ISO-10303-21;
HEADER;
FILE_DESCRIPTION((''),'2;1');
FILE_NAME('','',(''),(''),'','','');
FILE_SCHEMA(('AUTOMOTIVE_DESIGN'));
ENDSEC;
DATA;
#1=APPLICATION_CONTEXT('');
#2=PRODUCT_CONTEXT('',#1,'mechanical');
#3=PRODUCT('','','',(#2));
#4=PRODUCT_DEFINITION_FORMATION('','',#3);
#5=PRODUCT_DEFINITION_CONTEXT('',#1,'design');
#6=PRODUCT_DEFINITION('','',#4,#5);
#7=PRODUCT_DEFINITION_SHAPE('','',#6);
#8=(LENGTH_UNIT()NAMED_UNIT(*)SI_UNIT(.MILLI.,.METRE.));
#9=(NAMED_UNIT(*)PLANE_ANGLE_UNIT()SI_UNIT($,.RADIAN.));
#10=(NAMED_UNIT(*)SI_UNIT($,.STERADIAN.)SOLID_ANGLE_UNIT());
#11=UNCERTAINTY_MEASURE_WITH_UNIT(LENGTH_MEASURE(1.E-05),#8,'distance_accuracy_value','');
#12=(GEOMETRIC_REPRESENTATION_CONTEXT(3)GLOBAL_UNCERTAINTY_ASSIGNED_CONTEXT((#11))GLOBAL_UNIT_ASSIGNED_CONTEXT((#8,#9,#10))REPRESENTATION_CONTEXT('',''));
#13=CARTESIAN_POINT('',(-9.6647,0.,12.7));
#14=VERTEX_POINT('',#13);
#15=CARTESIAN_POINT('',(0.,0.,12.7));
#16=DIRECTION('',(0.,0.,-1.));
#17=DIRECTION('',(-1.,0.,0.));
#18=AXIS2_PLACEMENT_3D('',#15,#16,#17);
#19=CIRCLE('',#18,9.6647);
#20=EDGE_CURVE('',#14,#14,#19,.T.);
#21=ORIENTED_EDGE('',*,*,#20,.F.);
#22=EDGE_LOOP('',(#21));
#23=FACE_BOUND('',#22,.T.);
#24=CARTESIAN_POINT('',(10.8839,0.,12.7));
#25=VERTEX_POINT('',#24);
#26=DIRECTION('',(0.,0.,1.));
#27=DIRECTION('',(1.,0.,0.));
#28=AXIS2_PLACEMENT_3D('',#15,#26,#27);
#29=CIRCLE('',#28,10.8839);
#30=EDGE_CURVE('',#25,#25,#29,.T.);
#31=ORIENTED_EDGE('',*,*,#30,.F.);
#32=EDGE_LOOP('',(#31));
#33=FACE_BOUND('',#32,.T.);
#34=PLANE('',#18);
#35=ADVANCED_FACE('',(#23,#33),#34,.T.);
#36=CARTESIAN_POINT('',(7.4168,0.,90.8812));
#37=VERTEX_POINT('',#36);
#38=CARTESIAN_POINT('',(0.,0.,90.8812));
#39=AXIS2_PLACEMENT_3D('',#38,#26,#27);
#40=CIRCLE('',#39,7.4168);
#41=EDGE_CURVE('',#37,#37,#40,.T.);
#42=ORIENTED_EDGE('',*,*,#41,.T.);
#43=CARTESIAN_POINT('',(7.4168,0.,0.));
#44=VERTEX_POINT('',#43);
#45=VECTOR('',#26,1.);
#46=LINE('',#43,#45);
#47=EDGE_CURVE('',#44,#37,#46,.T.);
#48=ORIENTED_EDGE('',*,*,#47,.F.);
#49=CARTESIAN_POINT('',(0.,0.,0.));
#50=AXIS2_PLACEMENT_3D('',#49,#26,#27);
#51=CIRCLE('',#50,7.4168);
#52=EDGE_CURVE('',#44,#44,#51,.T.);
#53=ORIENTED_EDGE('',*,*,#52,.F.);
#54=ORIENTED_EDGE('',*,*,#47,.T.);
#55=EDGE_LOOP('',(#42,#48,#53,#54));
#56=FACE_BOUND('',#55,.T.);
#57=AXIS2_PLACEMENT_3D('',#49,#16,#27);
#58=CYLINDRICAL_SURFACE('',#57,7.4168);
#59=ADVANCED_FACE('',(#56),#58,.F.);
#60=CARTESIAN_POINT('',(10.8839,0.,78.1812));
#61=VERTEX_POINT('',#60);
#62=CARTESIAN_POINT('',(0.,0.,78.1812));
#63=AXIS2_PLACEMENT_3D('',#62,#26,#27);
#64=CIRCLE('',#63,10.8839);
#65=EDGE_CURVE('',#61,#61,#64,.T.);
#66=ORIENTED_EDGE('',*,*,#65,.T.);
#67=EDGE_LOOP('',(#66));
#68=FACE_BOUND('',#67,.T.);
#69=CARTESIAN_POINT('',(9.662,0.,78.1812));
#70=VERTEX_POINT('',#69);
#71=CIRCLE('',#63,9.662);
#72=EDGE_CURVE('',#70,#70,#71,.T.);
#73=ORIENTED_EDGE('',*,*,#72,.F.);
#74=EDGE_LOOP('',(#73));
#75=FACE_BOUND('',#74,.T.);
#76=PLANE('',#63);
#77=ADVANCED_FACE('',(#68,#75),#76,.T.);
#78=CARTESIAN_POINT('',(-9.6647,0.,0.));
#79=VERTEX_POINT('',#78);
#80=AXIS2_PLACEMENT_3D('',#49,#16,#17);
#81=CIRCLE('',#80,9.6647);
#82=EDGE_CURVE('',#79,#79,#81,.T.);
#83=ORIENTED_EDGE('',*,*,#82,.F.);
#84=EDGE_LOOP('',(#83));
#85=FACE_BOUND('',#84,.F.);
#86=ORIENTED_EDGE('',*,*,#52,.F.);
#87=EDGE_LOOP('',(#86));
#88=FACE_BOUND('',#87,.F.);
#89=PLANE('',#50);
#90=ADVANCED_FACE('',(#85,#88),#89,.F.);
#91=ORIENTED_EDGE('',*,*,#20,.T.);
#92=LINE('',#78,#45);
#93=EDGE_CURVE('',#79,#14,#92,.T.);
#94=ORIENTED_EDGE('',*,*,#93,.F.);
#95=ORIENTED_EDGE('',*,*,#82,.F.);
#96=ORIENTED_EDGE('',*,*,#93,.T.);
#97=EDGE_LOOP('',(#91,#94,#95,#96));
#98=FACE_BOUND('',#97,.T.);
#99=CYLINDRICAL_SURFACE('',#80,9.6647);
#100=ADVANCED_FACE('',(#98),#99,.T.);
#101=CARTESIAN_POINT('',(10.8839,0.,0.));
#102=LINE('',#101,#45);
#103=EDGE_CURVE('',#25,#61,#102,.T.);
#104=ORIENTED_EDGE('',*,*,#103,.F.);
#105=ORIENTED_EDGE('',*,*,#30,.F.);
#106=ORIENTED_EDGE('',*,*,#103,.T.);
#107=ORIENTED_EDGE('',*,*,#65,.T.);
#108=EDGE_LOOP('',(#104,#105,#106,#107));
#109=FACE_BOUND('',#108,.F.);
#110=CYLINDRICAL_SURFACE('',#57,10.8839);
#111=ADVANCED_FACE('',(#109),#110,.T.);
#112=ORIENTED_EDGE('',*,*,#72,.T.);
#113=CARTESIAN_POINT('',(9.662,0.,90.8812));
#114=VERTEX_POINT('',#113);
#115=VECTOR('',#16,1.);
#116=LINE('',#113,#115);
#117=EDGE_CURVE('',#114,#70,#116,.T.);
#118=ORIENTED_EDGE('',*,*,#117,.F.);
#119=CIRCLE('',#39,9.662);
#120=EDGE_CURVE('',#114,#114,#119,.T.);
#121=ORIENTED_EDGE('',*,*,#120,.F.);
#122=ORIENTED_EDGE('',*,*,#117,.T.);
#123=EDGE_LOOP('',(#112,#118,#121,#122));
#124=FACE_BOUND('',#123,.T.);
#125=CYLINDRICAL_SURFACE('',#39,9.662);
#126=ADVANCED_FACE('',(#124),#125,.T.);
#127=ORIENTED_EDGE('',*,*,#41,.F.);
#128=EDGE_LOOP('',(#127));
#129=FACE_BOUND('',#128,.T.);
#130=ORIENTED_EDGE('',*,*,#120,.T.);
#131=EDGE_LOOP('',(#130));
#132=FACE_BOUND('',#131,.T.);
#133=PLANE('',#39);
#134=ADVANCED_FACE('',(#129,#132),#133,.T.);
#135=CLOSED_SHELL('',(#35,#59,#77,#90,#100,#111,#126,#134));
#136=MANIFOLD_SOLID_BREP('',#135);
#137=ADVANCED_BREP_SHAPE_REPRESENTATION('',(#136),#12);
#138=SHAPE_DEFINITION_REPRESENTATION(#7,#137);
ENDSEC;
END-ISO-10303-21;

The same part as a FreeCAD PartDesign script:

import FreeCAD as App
import Part
import Sketcher
from FreeCAD import Vector
Q = App.Units.Quantity

doc = App.newDocument("Part")
params = doc.addObject("Spreadsheet::Sheet", "Params")
for row, (alias, value) in enumerate([
    ("sketch1_diameter", "0.857 in"),
    ("sketch1_diameter2", "0.584 in"),
    ("pad1_length", "3.578 in"),
    ("sketch2_diameter", "0.857 in"),
    ("pocket1_length", "0.5 in"),
    ("sketch3_diameter", "0.761 in"),
    ("sketch3_diameter2", "0.857 in"),
    ("pocket2_length", "0.5 in"),
], start=1):
    params.set(f"A{row}", alias)
    params.set(f"B{row}", "=" + value)
    params.setAlias(f"B{row}", alias)

body = doc.addObject("PartDesign::Body", "Body")

sketch1 = body.newObject("Sketcher::SketchObject", "Sketch")
sketch1.AttachmentSupport = (doc.getObject("XY_Plane"), [""])
sketch1.MapMode = "FlatFace"
sketch1.addGeometry(Part.Circle(Vector(0, 0, 0), Vector(0, 0, 1), 11), False)
sketch1.addGeometry(Part.Circle(Vector(0, 0, 0), Vector(0, 0, 1), 7), False)
sketch1.addConstraint(Sketcher.Constraint("Coincident", 0, 3, -1, 1))
sketch1.addConstraint(Sketcher.Constraint("Coincident", 1, 3, -1, 1))
sketch1.addConstraint(Sketcher.Constraint("Diameter", 0, Q("0.857 in")))
sketch1.addConstraint(Sketcher.Constraint("Diameter", 1, Q("0.584 in")))
sketch1.setExpression("Constraints[2]", "Params.sketch1_diameter")
sketch1.setExpression("Constraints[3]", "Params.sketch1_diameter2")
pad1 = body.newObject("PartDesign::Pad", "Pad")
pad1.Profile = sketch1
pad1.setExpression("Length", "Params.pad1_length")

sketch2 = body.newObject("Sketcher::SketchObject", "Sketch001")
sketch2.AttachmentSupport = (doc.getObject("XY_Plane"), [""])
sketch2.MapMode = "FlatFace"
sketch2.AttachmentOffset = App.Placement(Vector(0, 0, 3.578 * 25.4), App.Rotation())
sketch2.addGeometry(Part.Circle(Vector(0, 0, 0), Vector(0, 0, 1), 11), False)
sketch2.addGeometry(Part.Circle(Vector(0, 0, 0), Vector(0, 0, 1), 10), False)
sketch2.addConstraint(Sketcher.Constraint("Coincident", 0, 3, -1, 1))
sketch2.addConstraint(Sketcher.Constraint("Coincident", 1, 3, -1, 1))
sketch2.addConstraint(Sketcher.Constraint("Diameter", 0, Q("0.857 in")))
sketch2.addConstraint(Sketcher.Constraint("Diameter", 1, 19.324))
sketch2.setExpression("Constraints[2]", "Params.sketch2_diameter")
pocket1 = body.newObject("PartDesign::Pocket", "Pocket")
pocket1.Profile = sketch2
pocket1.setExpression("Length", "Params.pocket1_length")

sketch3 = body.newObject("Sketcher::SketchObject", "Sketch002")
sketch3.AttachmentSupport = (doc.getObject("XY_Plane"), [""])
sketch3.MapMode = "FlatFace"
sketch3.addGeometry(Part.Circle(Vector(0, 0, 0), Vector(0, 0, 1), 11), False)
sketch3.addGeometry(Part.Circle(Vector(0, 0, 0), Vector(0, 0, 1), 10), False)
sketch3.addConstraint(Sketcher.Constraint("Coincident", 0, 3, -1, 1))
sketch3.addConstraint(Sketcher.Constraint("Coincident", 1, 3, -1, 1))
sketch3.addConstraint(Sketcher.Constraint("Diameter", 1, Q("0.761 in")))
sketch3.addConstraint(Sketcher.Constraint("Diameter", 0, Q("0.857 in")))
sketch3.setExpression("Constraints[2]", "Params.sketch3_diameter")
sketch3.setExpression("Constraints[3]", "Params.sketch3_diameter2")
pocket2 = body.newObject("PartDesign::Pocket", "Pocket001")
pocket2.Profile = sketch3
pocket2.setExpression("Length", "Params.pocket2_length")
pocket2.Reversed = True

doc.recompute()
